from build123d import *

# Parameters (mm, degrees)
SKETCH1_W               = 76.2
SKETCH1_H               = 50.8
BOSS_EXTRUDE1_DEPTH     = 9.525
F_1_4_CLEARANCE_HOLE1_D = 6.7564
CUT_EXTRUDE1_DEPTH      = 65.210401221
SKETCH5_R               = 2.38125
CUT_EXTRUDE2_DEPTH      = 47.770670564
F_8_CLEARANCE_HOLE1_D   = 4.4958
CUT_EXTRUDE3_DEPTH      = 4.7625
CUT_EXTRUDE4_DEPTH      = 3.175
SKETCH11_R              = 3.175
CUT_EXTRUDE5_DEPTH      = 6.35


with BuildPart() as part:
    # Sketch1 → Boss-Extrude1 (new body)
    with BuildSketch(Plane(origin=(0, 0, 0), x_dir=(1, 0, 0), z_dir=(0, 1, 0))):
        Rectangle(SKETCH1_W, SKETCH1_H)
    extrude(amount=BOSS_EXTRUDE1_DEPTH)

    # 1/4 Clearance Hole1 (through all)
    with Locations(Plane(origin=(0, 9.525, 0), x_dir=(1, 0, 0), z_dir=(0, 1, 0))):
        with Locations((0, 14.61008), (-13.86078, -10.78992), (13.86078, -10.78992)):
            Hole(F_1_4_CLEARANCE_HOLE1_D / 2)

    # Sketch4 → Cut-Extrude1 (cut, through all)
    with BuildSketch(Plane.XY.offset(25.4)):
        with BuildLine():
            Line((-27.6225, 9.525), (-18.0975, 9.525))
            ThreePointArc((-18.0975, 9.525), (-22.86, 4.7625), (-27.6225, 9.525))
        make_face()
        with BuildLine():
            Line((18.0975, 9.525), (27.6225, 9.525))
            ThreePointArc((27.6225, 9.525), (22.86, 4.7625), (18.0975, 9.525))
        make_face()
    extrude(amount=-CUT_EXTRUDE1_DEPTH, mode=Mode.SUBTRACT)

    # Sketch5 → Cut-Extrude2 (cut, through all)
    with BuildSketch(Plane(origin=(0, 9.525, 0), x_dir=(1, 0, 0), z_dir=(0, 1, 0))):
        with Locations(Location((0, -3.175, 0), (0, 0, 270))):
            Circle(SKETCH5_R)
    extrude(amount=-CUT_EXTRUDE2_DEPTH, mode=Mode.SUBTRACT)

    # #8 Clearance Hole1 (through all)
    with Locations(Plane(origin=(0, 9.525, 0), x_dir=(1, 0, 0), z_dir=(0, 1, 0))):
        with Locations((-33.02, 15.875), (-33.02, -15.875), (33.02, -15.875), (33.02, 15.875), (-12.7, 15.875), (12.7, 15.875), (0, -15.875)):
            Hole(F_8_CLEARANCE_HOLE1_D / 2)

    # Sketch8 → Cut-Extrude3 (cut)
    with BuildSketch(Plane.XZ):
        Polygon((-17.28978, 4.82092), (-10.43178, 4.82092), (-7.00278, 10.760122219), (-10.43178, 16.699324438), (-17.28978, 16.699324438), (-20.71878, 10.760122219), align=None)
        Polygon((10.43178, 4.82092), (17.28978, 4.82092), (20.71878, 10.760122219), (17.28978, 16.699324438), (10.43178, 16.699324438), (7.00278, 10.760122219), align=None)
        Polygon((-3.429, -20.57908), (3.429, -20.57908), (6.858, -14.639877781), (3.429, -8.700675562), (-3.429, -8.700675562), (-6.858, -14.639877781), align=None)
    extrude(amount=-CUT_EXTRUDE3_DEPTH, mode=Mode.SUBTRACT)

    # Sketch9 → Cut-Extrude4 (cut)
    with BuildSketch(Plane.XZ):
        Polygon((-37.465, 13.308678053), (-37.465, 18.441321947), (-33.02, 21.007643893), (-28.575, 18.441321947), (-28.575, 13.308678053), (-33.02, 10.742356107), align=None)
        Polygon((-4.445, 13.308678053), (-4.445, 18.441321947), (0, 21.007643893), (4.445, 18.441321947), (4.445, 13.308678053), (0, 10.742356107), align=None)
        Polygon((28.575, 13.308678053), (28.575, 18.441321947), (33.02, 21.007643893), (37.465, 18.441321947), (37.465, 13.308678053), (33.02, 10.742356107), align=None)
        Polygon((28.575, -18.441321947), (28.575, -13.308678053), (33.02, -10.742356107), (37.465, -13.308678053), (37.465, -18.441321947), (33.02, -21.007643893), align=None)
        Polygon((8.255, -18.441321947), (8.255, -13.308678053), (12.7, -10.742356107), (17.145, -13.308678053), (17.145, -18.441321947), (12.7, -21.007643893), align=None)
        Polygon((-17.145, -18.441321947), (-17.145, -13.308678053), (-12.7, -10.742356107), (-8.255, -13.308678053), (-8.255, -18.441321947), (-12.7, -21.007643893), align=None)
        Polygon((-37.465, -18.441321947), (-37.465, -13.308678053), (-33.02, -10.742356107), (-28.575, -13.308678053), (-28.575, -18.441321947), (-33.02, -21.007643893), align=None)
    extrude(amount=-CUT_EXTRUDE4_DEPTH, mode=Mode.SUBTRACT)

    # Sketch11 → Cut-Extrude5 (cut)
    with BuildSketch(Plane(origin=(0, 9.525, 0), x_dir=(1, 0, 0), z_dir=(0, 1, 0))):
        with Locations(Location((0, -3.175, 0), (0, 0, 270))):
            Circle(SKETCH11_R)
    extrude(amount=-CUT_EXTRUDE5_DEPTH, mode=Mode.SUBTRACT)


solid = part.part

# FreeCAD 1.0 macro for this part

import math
import FreeCAD as App
import Part
import Sketcher
from FreeCAD import Vector
Q = App.Units.Quantity

doc = App.newDocument("Part")
params = doc.addObject("Spreadsheet::Sheet", "Params")
for row, (alias, value) in enumerate([
    ("sketch1_width", "3 in"),
    ("sketch1_height", "2 in"),
    ("pad1_length", "0.375 in"),
    ("sketch2_diameter", "0.266 in"),
    ("hole_diameter", "0.266 in"),
    ("sketch3_radius", "0.1875 in"),
    ("sketch4_diameter", "0.1875 in"),
    ("sketch5_diameter", "0.177 in"),
    ("hole2_diameter", "0.177 in"),
    ("sketch6_width", "0.27 in"),
    ("sketch6_length", "0.27 in"),
    ("pocket3_length", "0.1875 in"),
    ("pocket4_length", "0.125 in"),
    ("sketch8_diameter", "0.25 in"),
    ("pocket5_length", "0.25 in"),
], start=1):
    params.set(f"A{row}", alias)
    params.set(f"B{row}", "=" + value)
    params.setAlias(f"B{row}", alias)

body = doc.addObject("PartDesign::Body", "Body")

sketch1 = doc.addObject("Sketcher::SketchObject", "Sketch")
body.addObject(sketch1)
sketch1.AttachmentSupport = (doc.XZ_Plane, [""])
sketch1.MapMode = "FlatFace"
sketch1.addGeometry([
    Part.LineSegment(Vector(-38, -25, 0), Vector(-38, 25, 0)),
    Part.LineSegment(Vector(-38, 25, 0), Vector(38, 25, 0)),
    Part.LineSegment(Vector(38, 25, 0), Vector(38, -25, 0)),
    Part.LineSegment(Vector(38, -25, 0), Vector(-38, -25, 0)),
], False)
sketch1.addConstraint([
    Sketcher.Constraint("Coincident", 0, 2, 1, 1),
    Sketcher.Constraint("Coincident", 1, 2, 2, 1),
    Sketcher.Constraint("Coincident", 2, 2, 3, 1),
    Sketcher.Constraint("Coincident", 3, 2, 0, 1),
    Sketcher.Constraint("Vertical", 0),
    Sketcher.Constraint("Horizontal", 1),
    Sketcher.Constraint("Vertical", 2),
    Sketcher.Constraint("Horizontal", 3),
    Sketcher.Constraint("Symmetric", 0, 2, 2, 2, -1, 1),
    Sketcher.Constraint("DistanceX", 1, 1, 1, 2, Q("3 in")),
    Sketcher.Constraint("DistanceY", 0, 1, 0, 2, Q("2 in")),
])
sketch1.setExpression("Constraints[9]", "Params.sketch1_width")
sketch1.setExpression("Constraints[10]", "Params.sketch1_height")
pad1 = doc.addObject("PartDesign::Pad", "Pad")
body.addObject(pad1)
pad1.Profile = sketch1
pad1.setExpression("Length", "Params.pad1_length")
pad1.Reversed = True

sketch2 = doc.addObject("Sketcher::SketchObject", "Sketch001")
body.addObject(sketch2)
sketch2.AttachmentSupport = (doc.XZ_Plane, [""])
sketch2.MapMode = "FlatFace"
sketch2.AttachmentOffset = App.Placement(Vector(0, 0, -0.375 * 25.4), App.Rotation())
sketch2.addGeometry([
    Part.Circle(Vector(0, -14.6, 0), Vector(0, 0, 1), 3.4),
    Part.Circle(Vector(-13.9, 10.8, 0), Vector(0, 0, 1), 3.4),
    Part.Circle(Vector(13.9, 10.8, 0), Vector(0, 0, 1), 3.4),
], False)
sketch2.addConstraint([
    Sketcher.Constraint("Equal", 0, 1),
    Sketcher.Constraint("Equal", 1, 2),
    Sketcher.Constraint("Symmetric", 1, 3, 2, 3, -2),
    Sketcher.Constraint("PointOnObject", 0, 3, -2),
    Sketcher.Constraint("Diameter", 0, Q("0.266 in")),
    Sketcher.Constraint("DistanceY", 0, 3, 1, 3, Q("1 in")),
    Sketcher.Constraint("DistanceY", 0, 3, -1, 1, Q("0.5752 in")),
    Sketcher.Constraint("DistanceX", 1, 3, -1, 1, Q("0.5457 in")),
])
sketch2.setExpression("Constraints[4]", "Params.sketch2_diameter")
doc.recompute()
hole = doc.addObject("PartDesign::Hole", "Hole")
body.addObject(hole)
hole.Profile = sketch2
hole.ThreadType = "None"
hole.setExpression("Diameter", "Params.hole_diameter")
hole.DepthType = "ThroughAll"
hole.Reversed = True

sketch3 = doc.addObject("Sketcher::SketchObject", "Sketch002")
body.addObject(sketch3)
sketch3.AttachmentSupport = (doc.XY_Plane, [""])
sketch3.MapMode = "FlatFace"
sketch3.AttachmentOffset = App.Placement(Vector(0, 0, 1 * 25.4), App.Rotation())
sketch3.addGeometry([
    Part.LineSegment(Vector(-18.1, 9.5, 0), Vector(-27.6, 9.5, 0)),
    Part.ArcOfCircle(Part.Circle(Vector(-22.9, 9.5, 0), Vector(0, 0, 1), 4.8), math.radians(180), math.radians(360)),
    Part.LineSegment(Vector(27.6, 9.5, 0), Vector(18.1, 9.5, 0)),
    Part.ArcOfCircle(Part.Circle(Vector(22.9, 9.5, 0), Vector(0, 0, 1), 4.8), math.radians(180), math.radians(360)),
], False)
sketch3.addConstraint([
    Sketcher.Constraint("Coincident", 0, 1, 1, 2),
    Sketcher.Constraint("Coincident", 1, 1, 0, 2),
    Sketcher.Constraint("Coincident", 2, 1, 3, 2),
    Sketcher.Constraint("Coincident", 3, 1, 2, 2),
    Sketcher.Constraint("Horizontal", 0),
    Sketcher.Constraint("Horizontal", 2),
    Sketcher.Constraint("Equal", 1, 3),
    Sketcher.Constraint("Symmetric", 1, 3, 3, 3, -2),
    Sketcher.Constraint("Horizontal", 3, 3, 0, 1),
    Sketcher.Constraint("Horizontal", 1, 1, 2, 1),
    Sketcher.Constraint("Radius", 1, Q("0.1875 in")),
    Sketcher.Constraint("DistanceX", 1, 3, -1, 1, Q("0.9 in")),
    Sketcher.Constraint("DistanceY", -1, 1, 1, 3, Q("0.375 in")),
])
sketch3.setExpression("Constraints[10]", "Params.sketch3_radius")
pocket1 = doc.addObject("PartDesign::Pocket", "Pocket")
body.addObject(pocket1)
pocket1.Profile = sketch3
pocket1.Type = "ThroughAll"

sketch4 = doc.addObject("Sketcher::SketchObject", "Sketch003")
body.addObject(sketch4)
sketch4.AttachmentSupport = (doc.XZ_Plane, [""])
sketch4.MapMode = "FlatFace"
sketch4.AttachmentOffset = App.Placement(Vector(0, 0, -0.375 * 25.4), App.Rotation())
sketch4.addGeometry(Part.Circle(Vector(0, 3.2, 0), Vector(0, 0, 1), 2.4), False)
sketch4.addConstraint([
    Sketcher.Constraint("PointOnObject", 0, 3, -2),
    Sketcher.Constraint("Diameter", 0, Q("0.1875 in")),
    Sketcher.Constraint("DistanceY", -1, 1, 0, 3, Q("0.125 in")),
])
sketch4.setExpression("Constraints[1]", "Params.sketch4_diameter")
pocket2 = doc.addObject("PartDesign::Pocket", "Pocket001")
body.addObject(pocket2)
pocket2.Profile = sketch4
pocket2.Type = "ThroughAll"
pocket2.Reversed = True

sketch5 = doc.addObject("Sketcher::SketchObject", "Sketch004")
body.addObject(sketch5)
sketch5.AttachmentSupport = (doc.XZ_Plane, [""])
sketch5.MapMode = "FlatFace"
sketch5.AttachmentOffset = App.Placement(Vector(0, 0, -0.375 * 25.4), App.Rotation())
sketch5.addGeometry([
    Part.Circle(Vector(-33, -15.9, 0), Vector(0, 0, 1), 2.2),
    Part.Circle(Vector(-33, 15.9, 0), Vector(0, 0, 1), 2.2),
    Part.Circle(Vector(33, 15.9, 0), Vector(0, 0, 1), 2.2),
    Part.Circle(Vector(33, -15.9, 0), Vector(0, 0, 1), 2.2),
    Part.Circle(Vector(-12.7, -15.9, 0), Vector(0, 0, 1), 2.2),
    Part.Circle(Vector(12.7, -15.9, 0), Vector(0, 0, 1), 2.2),
    Part.Circle(Vector(0, 15.9, 0), Vector(0, 0, 1), 2.2),
], False)
sketch5.addConstraint([
    Sketcher.Constraint("Equal", 0, 1),
    Sketcher.Constraint("Equal", 1, 2),
    Sketcher.Constraint("Equal", 2, 3),
    Sketcher.Constraint("Equal", 3, 4),
    Sketcher.Constraint("Equal", 4, 5),
    Sketcher.Constraint("Equal", 5, 6),
    Sketcher.Constraint("Symmetric", 0, 3, 2, 3, -1, 1),
    Sketcher.Constraint("Symmetric", 1, 3, 3, 3, -1, 1),
    Sketcher.Constraint("Symmetric", 1, 3, 2, 3, -2),
    Sketcher.Constraint("Symmetric", 4, 3, 5, 3, -2),
    Sketcher.Constraint("PointOnObject", 6, 3, -2),
    Sketcher.Constraint("Horizontal", 3, 3, 4, 3),
    Sketcher.Constraint("Horizontal", 2, 3, 6, 3),
    Sketcher.Constraint("Diameter", 0, Q("0.177 in")),
    Sketcher.Constraint("DistanceX", 4, 3, 5, 3, Q("1 in")),
    Sketcher.Constraint("DistanceX", 0, 3, -1, 1, Q("1.3 in")),
    Sketcher.Constraint("DistanceY", 0, 3, 1, 3, Q("1.25 in")),
])
sketch5.setExpression("Constraints[13]", "Params.sketch5_diameter")
doc.recompute()
hole2 = doc.addObject("PartDesign::Hole", "Hole001")
body.addObject(hole2)
hole2.Profile = sketch5
hole2.ThreadType = "None"
hole2.setExpression("Diameter", "Params.hole2_diameter")
hole2.DepthType = "ThroughAll"
hole2.Reversed = True

sketch6 = doc.addObject("Sketcher::SketchObject", "Sketch005")
body.addObject(sketch6)
sketch6.AttachmentSupport = (doc.XZ_Plane, [""])
sketch6.MapMode = "FlatFace"
sketch6.addGeometry([
    Part.LineSegment(Vector(-17, 5, 0), Vector(-10, 5, 0)),
    Part.LineSegment(Vector(-10, 5, 0), Vector(-7, 11, 0)),
    Part.LineSegment(Vector(-7, 11, 0), Vector(-10, 17, 0)),
    Part.LineSegment(Vector(-10, 17, 0), Vector(-17, 17, 0)),
    Part.LineSegment(Vector(-17, 17, 0), Vector(-21, 11, 0)),
    Part.LineSegment(Vector(-21, 11, 0), Vector(-17, 5, 0)),
    Part.LineSegment(Vector(10, 5, 0), Vector(17, 5, 0)),
    Part.LineSegment(Vector(17, 5, 0), Vector(21, 11, 0)),
    Part.LineSegment(Vector(21, 11, 0), Vector(17, 17, 0)),
    Part.LineSegment(Vector(17, 17, 0), Vector(10, 17, 0)),
    Part.LineSegment(Vector(10, 17, 0), Vector(7, 11, 0)),
    Part.LineSegment(Vector(7, 11, 0), Vector(10, 5, 0)),
    Part.LineSegment(Vector(-3, -21, 0), Vector(3, -21, 0)),
    Part.LineSegment(Vector(3, -21, 0), Vector(7, -15, 0)),
    Part.LineSegment(Vector(7, -15, 0), Vector(3, -9, 0)),
    Part.LineSegment(Vector(3, -9, 0), Vector(-3, -9, 0)),
    Part.LineSegment(Vector(-3, -9, 0), Vector(-7, -15, 0)),
    Part.LineSegment(Vector(-7, -15, 0), Vector(-3, -21, 0)),
], False)
sketch6.addConstraint([
    Sketcher.Constraint("Coincident", 0, 2, 1, 1),
    Sketcher.Constraint("Coincident", 1, 2, 2, 1),
    Sketcher.Constraint("Coincident", 2, 2, 3, 1),
    Sketcher.Constraint("Coincident", 3, 2, 4, 1),
    Sketcher.Constraint("Coincident", 4, 2, 5, 1),
    Sketcher.Constraint("Coincident", 5, 2, 0, 1),
    Sketcher.Constraint("Coincident", 6, 2, 7, 1),
    Sketcher.Constraint("Coincident", 7, 2, 8, 1),
    Sketcher.Constraint("Coincident", 8, 2, 9, 1),
    Sketcher.Constraint("Coincident", 9, 2, 10, 1),
    Sketcher.Constraint("Coincident", 10, 2, 11, 1),
    Sketcher.Constraint("Coincident", 11, 2, 6, 1),
    Sketcher.Constraint("Coincident", 12, 2, 13, 1),
    Sketcher.Constraint("Coincident", 13, 2, 14, 1),
    Sketcher.Constraint("Coincident", 14, 2, 15, 1),
    Sketcher.Constraint("Coincident", 15, 2, 16, 1),
    Sketcher.Constraint("Coincident", 16, 2, 17, 1),
    Sketcher.Constraint("Coincident", 17, 2, 12, 1),
    Sketcher.Constraint("Horizontal", 0),
    Sketcher.Constraint("Horizontal", 3),
    Sketcher.Constraint("Horizontal", 6),
    Sketcher.Constraint("Horizontal", 9),
    Sketcher.Constraint("Horizontal", 12),
    Sketcher.Constraint("Horizontal", 15),
    Sketcher.Constraint("Symmetric", 5, 2, 6, 2, -2),
    Sketcher.Constraint("Symmetric", 4, 2, 7, 2, -2),
    Sketcher.Constraint("Symmetric", 3, 2, 8, 2, -2),
    Sketcher.Constraint("Symmetric", 1, 2, 10, 2, -2),
    Sketcher.Constraint("Symmetric", 13, 2, 16, 2, -2),
    Sketcher.Constraint("Parallel", 1, 4),
    Sketcher.Constraint("Parallel", 2, 5),
    Sketcher.Constraint("Parallel", 4, 7),
    Sketcher.Constraint("Parallel", 7, 10),
    Sketcher.Constraint("Parallel", 8, 11),
    Sketcher.Constraint("Parallel", 10, 13),
    Sketcher.Constraint("Parallel", 11, 14),
    Sketcher.Constraint("Parallel", 13, 16),
    Sketcher.Constraint("Parallel", 14, 17),
    Sketcher.Constraint("Horizontal", 1, 2, 4, 2),
    Sketcher.Constraint("Vertical", 0, 2, 2, 2),
    Sketcher.Constraint("Vertical", 12, 2, 14, 2),
    Sketcher.Constraint("Equal", 9, 12),
    Sketcher.Constraint("Equal", 11, 13),
    Sketcher.Constraint("Angle", 1, Q("60 deg")),
    Sketcher.Constraint("DistanceY", 12, 2, 11, 2, Q("1 in")),
    Sketcher.Constraint("DistanceX", 0, 1, 0, 2, Q("0.27 in")),
    Sketcher.Constraint("Distance", 1, Q("0.27 in")),
    Sketcher.Constraint("DistanceX", 0, 2, -1, 1, Q("0.4107 in")),
    Sketcher.Constraint("DistanceY", -1, 1, 0, 2, Q("0.1898 in")),
])
sketch6.setExpression("Constraints[45]", "Params.sketch6_width")
sketch6.setExpression("Constraints[46]", "Params.sketch6_length")
pocket3 = doc.addObject("PartDesign::Pocket", "Pocket002")
body.addObject(pocket3)
pocket3.Profile = sketch6
pocket3.setExpression("Length", "Params.pocket3_length")

sketch7 = doc.addObject("Sketcher::SketchObject", "Sketch006")
body.addObject(sketch7)
sketch7.AttachmentSupport = (doc.XZ_Plane, [""])
sketch7.MapMode = "FlatFace"
sketch7.addGeometry([
    Part.LineSegment(Vector(-37, 18, 0), Vector(-37, 13, 0)),
    Part.LineSegment(Vector(-37, 13, 0), Vector(-33, 11, 0)),
    Part.LineSegment(Vector(-33, 11, 0), Vector(-29, 13, 0)),
    Part.LineSegment(Vector(-29, 13, 0), Vector(-29, 18, 0)),
    Part.LineSegment(Vector(-29, 18, 0), Vector(-33, 21, 0)),
    Part.LineSegment(Vector(-33, 21, 0), Vector(-37, 18, 0)),
    Part.LineSegment(Vector(-4, 18, 0), Vector(-4, 13, 0)),
    Part.LineSegment(Vector(-4, 13, 0), Vector(0, 11, 0)),
    Part.LineSegment(Vector(0, 11, 0), Vector(4, 13, 0)),
    Part.LineSegment(Vector(4, 13, 0), Vector(4, 18, 0)),
    Part.LineSegment(Vector(4, 18, 0), Vector(0, 21, 0)),
    Part.LineSegment(Vector(0, 21, 0), Vector(-4, 18, 0)),
    Part.LineSegment(Vector(29, 18, 0), Vector(29, 13, 0)),
    Part.LineSegment(Vector(29, 13, 0), Vector(33, 11, 0)),
    Part.LineSegment(Vector(33, 11, 0), Vector(37, 13, 0)),
    Part.LineSegment(Vector(37, 13, 0), Vector(37, 18, 0)),
    Part.LineSegment(Vector(37, 18, 0), Vector(33, 21, 0)),
    Part.LineSegment(Vector(33, 21, 0), Vector(29, 18, 0)),
    Part.LineSegment(Vector(29, -13, 0), Vector(29, -18, 0)),
    Part.LineSegment(Vector(29, -18, 0), Vector(33, -21, 0)),
    Part.LineSegment(Vector(33, -21, 0), Vector(37, -18, 0)),
    Part.LineSegment(Vector(37, -18, 0), Vector(37, -13, 0)),
    Part.LineSegment(Vector(37, -13, 0), Vector(33, -11, 0)),
    Part.LineSegment(Vector(33, -11, 0), Vector(29, -13, 0)),
    Part.LineSegment(Vector(8, -13, 0), Vector(8, -18, 0)),
    Part.LineSegment(Vector(8, -18, 0), Vector(13, -21, 0)),
    Part.LineSegment(Vector(13, -21, 0), Vector(17, -18, 0)),
    Part.LineSegment(Vector(17, -18, 0), Vector(17, -13, 0)),
    Part.LineSegment(Vector(17, -13, 0), Vector(13, -11, 0)),
    Part.LineSegment(Vector(13, -11, 0), Vector(8, -13, 0)),
    Part.LineSegment(Vector(-17, -13, 0), Vector(-17, -18, 0)),
    Part.LineSegment(Vector(-17, -18, 0), Vector(-13, -21, 0)),
    Part.LineSegment(Vector(-13, -21, 0), Vector(-8, -18, 0)),
    Part.LineSegment(Vector(-8, -18, 0), Vector(-8, -13, 0)),
    Part.LineSegment(Vector(-8, -13, 0), Vector(-13, -11, 0)),
    Part.LineSegment(Vector(-13, -11, 0), Vector(-17, -13, 0)),
    Part.LineSegment(Vector(-37, -13, 0), Vector(-37, -18, 0)),
    Part.LineSegment(Vector(-37, -18, 0), Vector(-33, -21, 0)),
    Part.LineSegment(Vector(-33, -21, 0), Vector(-29, -18, 0)),
    Part.LineSegment(Vector(-29, -18, 0), Vector(-29, -13, 0)),
    Part.LineSegment(Vector(-29, -13, 0), Vector(-33, -11, 0)),
    Part.LineSegment(Vector(-33, -11, 0), Vector(-37, -13, 0)),
], False)
sketch7.addConstraint([
    Sketcher.Constraint("Coincident", 0, 2, 1, 1),
    Sketcher.Constraint("Coincident", 1, 2, 2, 1),
    Sketcher.Constraint("Coincident", 2, 2, 3, 1),
    Sketcher.Constraint("Coincident", 3, 2, 4, 1),
    Sketcher.Constraint("Coincident", 4, 2, 5, 1),
    Sketcher.Constraint("Coincident", 5, 2, 0, 1),
    Sketcher.Constraint("Coincident", 6, 2, 7, 1),
    Sketcher.Constraint("Coincident", 7, 2, 8, 1),
    Sketcher.Constraint("Coincident", 8, 2, 9, 1),
    Sketcher.Constraint("Coincident", 9, 2, 10, 1),
    Sketcher.Constraint("Coincident", 10, 2, 11, 1),
    Sketcher.Constraint("Coincident", 11, 2, 6, 1),
    Sketcher.Constraint("Coincident", 12, 2, 13, 1),
    Sketcher.Constraint("Coincident", 13, 2, 14, 1),
    Sketcher.Constraint("Coincident", 14, 2, 15, 1),
    Sketcher.Constraint("Coincident", 15, 2, 16, 1),
    Sketcher.Constraint("Coincident", 16, 2, 17, 1),
    Sketcher.Constraint("Coincident", 17, 2, 12, 1),
    Sketcher.Constraint("Coincident", 18, 2, 19, 1),
    Sketcher.Constraint("Coincident", 19, 2, 20, 1),
    Sketcher.Constraint("Coincident", 20, 2, 21, 1),
    Sketcher.Constraint("Coincident", 21, 2, 22, 1),
    Sketcher.Constraint("Coincident", 22, 2, 23, 1),
    Sketcher.Constraint("Coincident", 23, 2, 18, 1),
    Sketcher.Constraint("Coincident", 24, 2, 25, 1),
    Sketcher.Constraint("Coincident", 25, 2, 26, 1),
    Sketcher.Constraint("Coincident", 26, 2, 27, 1),
    Sketcher.Constraint("Coincident", 27, 2, 28, 1),
    Sketcher.Constraint("Coincident", 28, 2, 29, 1),
    Sketcher.Constraint("Coincident", 29, 2, 24, 1),
    Sketcher.Constraint("Coincident", 30, 2, 31, 1),
    Sketcher.Constraint("Coincident", 31, 2, 32, 1),
    Sketcher.Constraint("Coincident", 32, 2, 33, 1),
    Sketcher.Constraint("Coincident", 33, 2, 34, 1),
    Sketcher.Constraint("Coincident", 34, 2, 35, 1),
    Sketcher.Constraint("Coincident", 35, 2, 30, 1),
    Sketcher.Constraint("Coincident", 36, 2, 37, 1),
    Sketcher.Constraint("Coincident", 37, 2, 38, 1),
    Sketcher.Constraint("Coincident", 38, 2, 39, 1),
    Sketcher.Constraint("Coincident", 39, 2, 40, 1),
    Sketcher.Constraint("Coincident", 40, 2, 41, 1),
    Sketcher.Constraint("Coincident", 41, 2, 36, 1),
    Sketcher.Constraint("Vertical", 0),
    Sketcher.Constraint("Vertical", 3),
    Sketcher.Constraint("Vertical", 6),
    Sketcher.Constraint("Vertical", 9),
    Sketcher.Constraint("Vertical", 12),
    Sketcher.Constraint("Vertical", 15),
    Sketcher.Constraint("Vertical", 18),
    Sketcher.Constraint("Vertical", 21),
    Sketcher.Constraint("Vertical", 24),
    Sketcher.Constraint("Vertical", 27),
    Sketcher.Constraint("Vertical", 30),
    Sketcher.Constraint("Vertical", 33),
    Sketcher.Constraint("Vertical", 36),
    Sketcher.Constraint("Vertical", 39),
    Sketcher.Constraint("Symmetric", 3, 2, 18, 2, -1, 1),
    Sketcher.Constraint("Symmetric", 4, 2, 19, 2, -1, 1),
    Sketcher.Constraint("Symmetric", 5, 2, 20, 2, -1, 1),
    Sketcher.Constraint("Symmetric", 1, 2, 22, 2, -1, 1),
    Sketcher.Constraint("Symmetric", 15, 2, 36, 2, -1, 1),
    Sketcher.Constraint("Symmetric", 16, 2, 37, 2, -1, 1),
    Sketcher.Constraint("Symmetric", 17, 2, 38, 2, -1, 1),
    Sketcher.Constraint("Symmetric", 13, 2, 40, 2, -1, 1),
    Sketcher.Constraint("Symmetric", 6, 2, 8, 2, -2),
    Sketcher.Constraint("Symmetric", 2, 2, 12, 2, -2),
    Sketcher.Constraint("Symmetric", 1, 2, 13, 2, -2),
    Sketcher.Constraint("Symmetric", 0, 2, 14, 2, -2),
    Sketcher.Constraint("Symmetric", 4, 2, 16, 2, -2),
    Sketcher.Constraint("Symmetric", 26, 2, 30, 2, -2),
    Sketcher.Constraint("Symmetric", 25, 2, 31, 2, -2),
    Sketcher.Constraint("Symmetric", 24, 2, 32, 2, -2),
    Sketcher.Constraint("Symmetric", 28, 2, 34, 2, -2),
    Sketcher.Constraint("PointOnObject", 7, 2, -2),
    Sketcher.Constraint("PointOnObject", 10, 2, -2),
    Sketcher.Constraint("Parallel", 1, 4),
    Sketcher.Constraint("Parallel", 2, 5),
    Sketcher.Constraint("Parallel", 4, 7),
    Sketcher.Constraint("Parallel", 5, 8),
    Sketcher.Constraint("Parallel", 7, 10),
    Sketcher.Constraint("Parallel", 8, 11),
    Sketcher.Constraint("Parallel", 13, 16),
    Sketcher.Constraint("Parallel", 14, 17),
    Sketcher.Constraint("Parallel", 19, 22),
    Sketcher.Constraint("Parallel", 20, 23),
    Sketcher.Constraint("Parallel", 22, 25),
    Sketcher.Constraint("Parallel", 23, 26),
    Sketcher.Constraint("Parallel", 25, 28),
    Sketcher.Constraint("Parallel", 26, 29),
    Sketcher.Constraint("Parallel", 31, 34),
    Sketcher.Constraint("Parallel", 32, 35),
    Sketcher.Constraint("Parallel", 37, 40),
    Sketcher.Constraint("Parallel", 38, 41),
    Sketcher.Constraint("Horizontal", 0, 2, 2, 2),
    Sketcher.Constraint("Horizontal", 3, 2, 5, 2),
    Sketcher.Constraint("Horizontal", 2, 2, 6, 2),
    Sketcher.Constraint("Horizontal", 1, 2, 7, 2),
    Sketcher.Constraint("Horizontal", 5, 2, 9, 2),
    Sketcher.Constraint("Horizontal", 20, 2, 24, 2),
    Sketcher.Constraint("Horizontal", 19, 2, 25, 2),
    Sketcher.Constraint("Horizontal", 24, 2, 26, 2),
    Sketcher.Constraint("Horizontal", 23, 2, 27, 2),
    Sketcher.Constraint("Horizontal", 22, 2, 28, 2),
    Sketcher.Constraint("Angle", 1, Q("-30 deg")),
    Sketcher.Constraint("DistanceX", 30, 2, 24, 2, Q("1 in")),
    Sketcher.Constraint("DistanceX", 1, 2, -1, 1, Q("1.3 in")),
    Sketcher.Constraint("DistanceX", 0, 2, 2, 2, Q("0.35 in")),
    Sketcher.Constraint("DistanceY", 18, 2, 12, 2, Q("1.25 in")),
    Sketcher.Constraint("DistanceY", 0, 2, 0, 1, Q("5.132644 mm")),
])
pocket4 = doc.addObject("PartDesign::Pocket", "Pocket003")
body.addObject(pocket4)
pocket4.Profile = sketch7
pocket4.setExpression("Length", "Params.pocket4_length")

sketch8 = doc.addObject("Sketcher::SketchObject", "Sketch007")
body.addObject(sketch8)
sketch8.AttachmentSupport = (doc.XZ_Plane, [""])
sketch8.MapMode = "FlatFace"
sketch8.AttachmentOffset = App.Placement(Vector(0, 0, -0.375 * 25.4), App.Rotation())
sketch8.addGeometry(Part.Circle(Vector(0, 3.2, 0), Vector(0, 0, 1), 3.2), False)
sketch8.addConstraint([
    Sketcher.Constraint("PointOnObject", 0, 3, -2),
    Sketcher.Constraint("Diameter", 0, Q("0.25 in")),
    Sketcher.Constraint("DistanceY", -1, 1, 0, 3, Q("0.125 in")),
])
sketch8.setExpression("Constraints[1]", "Params.sketch8_diameter")
pocket5 = doc.addObject("PartDesign::Pocket", "Pocket004")
body.addObject(pocket5)
pocket5.Profile = sketch8
pocket5.setExpression("Length", "Params.pocket5_length")
pocket5.Reversed = True

doc.recompute()
